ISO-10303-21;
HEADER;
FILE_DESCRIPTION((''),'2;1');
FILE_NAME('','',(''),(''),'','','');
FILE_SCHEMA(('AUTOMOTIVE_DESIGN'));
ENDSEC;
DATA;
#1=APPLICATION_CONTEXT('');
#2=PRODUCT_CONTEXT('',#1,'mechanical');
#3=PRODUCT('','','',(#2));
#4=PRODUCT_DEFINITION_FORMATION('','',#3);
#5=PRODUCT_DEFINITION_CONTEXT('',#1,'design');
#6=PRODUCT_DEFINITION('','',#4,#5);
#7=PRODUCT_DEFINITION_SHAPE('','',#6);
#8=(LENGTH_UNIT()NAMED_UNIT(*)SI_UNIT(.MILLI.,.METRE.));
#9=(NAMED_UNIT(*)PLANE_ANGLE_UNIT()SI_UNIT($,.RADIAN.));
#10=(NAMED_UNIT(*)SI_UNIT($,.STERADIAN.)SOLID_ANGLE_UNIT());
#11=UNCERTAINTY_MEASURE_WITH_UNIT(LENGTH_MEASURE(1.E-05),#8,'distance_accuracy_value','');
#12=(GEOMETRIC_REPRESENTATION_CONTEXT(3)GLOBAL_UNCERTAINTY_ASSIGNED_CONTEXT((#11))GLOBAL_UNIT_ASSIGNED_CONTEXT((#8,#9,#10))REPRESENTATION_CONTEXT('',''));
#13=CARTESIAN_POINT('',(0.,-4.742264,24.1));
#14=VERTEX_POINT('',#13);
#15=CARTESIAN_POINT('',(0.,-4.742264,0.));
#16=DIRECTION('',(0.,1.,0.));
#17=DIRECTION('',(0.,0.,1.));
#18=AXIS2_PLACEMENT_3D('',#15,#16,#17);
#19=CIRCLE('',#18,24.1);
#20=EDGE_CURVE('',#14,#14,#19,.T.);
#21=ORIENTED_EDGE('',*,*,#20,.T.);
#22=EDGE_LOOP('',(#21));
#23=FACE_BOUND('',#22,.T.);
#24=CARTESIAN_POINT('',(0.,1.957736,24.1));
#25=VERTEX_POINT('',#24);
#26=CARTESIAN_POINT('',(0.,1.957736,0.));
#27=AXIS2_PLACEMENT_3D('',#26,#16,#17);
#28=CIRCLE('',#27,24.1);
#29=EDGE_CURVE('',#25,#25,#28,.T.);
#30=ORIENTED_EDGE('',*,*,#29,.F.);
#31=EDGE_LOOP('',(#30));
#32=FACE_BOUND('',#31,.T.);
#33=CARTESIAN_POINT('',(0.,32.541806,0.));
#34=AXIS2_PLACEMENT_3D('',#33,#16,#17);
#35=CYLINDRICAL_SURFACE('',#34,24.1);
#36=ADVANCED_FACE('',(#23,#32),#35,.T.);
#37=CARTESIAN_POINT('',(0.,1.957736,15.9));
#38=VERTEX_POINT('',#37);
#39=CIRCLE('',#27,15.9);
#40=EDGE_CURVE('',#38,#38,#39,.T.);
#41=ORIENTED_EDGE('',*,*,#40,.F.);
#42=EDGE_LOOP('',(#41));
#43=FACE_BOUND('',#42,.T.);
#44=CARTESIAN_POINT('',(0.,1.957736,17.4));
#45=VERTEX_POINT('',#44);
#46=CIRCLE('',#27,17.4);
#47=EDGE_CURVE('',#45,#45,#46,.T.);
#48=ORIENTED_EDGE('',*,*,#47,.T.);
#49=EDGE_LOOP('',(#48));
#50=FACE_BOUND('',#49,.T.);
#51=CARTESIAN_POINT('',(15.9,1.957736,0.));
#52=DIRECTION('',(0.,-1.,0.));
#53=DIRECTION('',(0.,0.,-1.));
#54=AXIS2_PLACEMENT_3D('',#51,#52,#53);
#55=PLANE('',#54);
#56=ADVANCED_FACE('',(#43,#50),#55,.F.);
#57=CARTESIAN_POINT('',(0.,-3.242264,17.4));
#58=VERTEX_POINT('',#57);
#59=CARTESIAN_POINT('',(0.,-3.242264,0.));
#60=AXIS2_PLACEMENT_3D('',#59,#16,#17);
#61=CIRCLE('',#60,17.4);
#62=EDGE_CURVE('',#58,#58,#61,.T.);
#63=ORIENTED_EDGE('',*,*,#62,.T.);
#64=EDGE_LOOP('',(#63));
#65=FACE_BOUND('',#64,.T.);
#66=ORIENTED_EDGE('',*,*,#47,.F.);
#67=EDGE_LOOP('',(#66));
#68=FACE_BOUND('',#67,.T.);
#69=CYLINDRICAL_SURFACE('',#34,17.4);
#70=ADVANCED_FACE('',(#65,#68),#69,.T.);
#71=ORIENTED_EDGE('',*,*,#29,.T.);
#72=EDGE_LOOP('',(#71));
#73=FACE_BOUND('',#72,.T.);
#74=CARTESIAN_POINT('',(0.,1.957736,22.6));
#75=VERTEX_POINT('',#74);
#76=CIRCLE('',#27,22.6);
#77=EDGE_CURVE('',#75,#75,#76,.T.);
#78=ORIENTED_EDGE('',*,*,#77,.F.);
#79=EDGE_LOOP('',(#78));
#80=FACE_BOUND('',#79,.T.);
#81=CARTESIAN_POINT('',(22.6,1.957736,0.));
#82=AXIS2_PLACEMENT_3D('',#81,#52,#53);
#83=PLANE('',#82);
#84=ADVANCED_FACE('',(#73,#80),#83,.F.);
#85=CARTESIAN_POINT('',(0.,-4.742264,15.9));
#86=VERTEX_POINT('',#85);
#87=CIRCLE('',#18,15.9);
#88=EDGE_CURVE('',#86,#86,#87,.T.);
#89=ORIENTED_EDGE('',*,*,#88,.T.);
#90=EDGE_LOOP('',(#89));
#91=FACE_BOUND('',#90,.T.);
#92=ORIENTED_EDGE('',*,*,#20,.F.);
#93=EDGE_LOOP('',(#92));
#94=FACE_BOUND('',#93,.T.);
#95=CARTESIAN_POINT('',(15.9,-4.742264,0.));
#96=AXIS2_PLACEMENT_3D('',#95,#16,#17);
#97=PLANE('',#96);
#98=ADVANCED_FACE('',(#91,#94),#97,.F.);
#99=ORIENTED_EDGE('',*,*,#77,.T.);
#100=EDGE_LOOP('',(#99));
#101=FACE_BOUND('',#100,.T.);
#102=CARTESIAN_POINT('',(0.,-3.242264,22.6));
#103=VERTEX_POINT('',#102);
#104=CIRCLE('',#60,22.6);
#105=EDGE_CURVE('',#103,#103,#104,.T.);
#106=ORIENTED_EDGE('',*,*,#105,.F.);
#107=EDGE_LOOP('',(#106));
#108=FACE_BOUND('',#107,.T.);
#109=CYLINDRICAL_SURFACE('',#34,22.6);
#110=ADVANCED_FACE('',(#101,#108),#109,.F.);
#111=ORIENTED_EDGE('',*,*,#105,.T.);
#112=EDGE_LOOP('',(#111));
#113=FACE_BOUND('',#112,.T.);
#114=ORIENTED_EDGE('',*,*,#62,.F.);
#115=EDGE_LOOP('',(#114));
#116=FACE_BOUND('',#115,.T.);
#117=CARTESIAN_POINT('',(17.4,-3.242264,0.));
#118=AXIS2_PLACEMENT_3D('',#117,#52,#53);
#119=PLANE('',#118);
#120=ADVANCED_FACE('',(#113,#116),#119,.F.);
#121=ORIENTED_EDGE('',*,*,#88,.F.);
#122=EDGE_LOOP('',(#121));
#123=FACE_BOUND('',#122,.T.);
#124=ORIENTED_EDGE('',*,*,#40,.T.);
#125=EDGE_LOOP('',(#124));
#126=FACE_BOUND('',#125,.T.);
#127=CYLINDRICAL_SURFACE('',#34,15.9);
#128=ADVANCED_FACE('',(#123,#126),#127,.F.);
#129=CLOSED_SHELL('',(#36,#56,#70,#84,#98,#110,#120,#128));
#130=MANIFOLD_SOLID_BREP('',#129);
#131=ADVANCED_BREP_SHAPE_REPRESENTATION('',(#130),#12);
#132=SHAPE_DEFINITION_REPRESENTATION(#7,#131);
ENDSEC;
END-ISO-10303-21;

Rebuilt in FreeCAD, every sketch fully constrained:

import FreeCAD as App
import Part
import Sketcher

V = App.Vector


def add_polygon(sketch, points):
    """Adds a closed chain of lines whose ends are joined by coincident constraints."""
    first, n = sketch.GeometryCount, len(points)
    for a, b in zip(points, points[1:] + points[:1]):
        sketch.addGeometry(Part.LineSegment(App.Vector(*a, 0), App.Vector(*b, 0)), False)
    for i in range(n):
        sketch.addConstraint(Sketcher.Constraint("Coincident", first + i, 2, first + (i + 1) % n, 1))

doc = App.newDocument("Part")
body = doc.addObject("PartDesign::Body", "Body")

# Sketch on XY plane
sketch1 = doc.addObject("Sketcher::SketchObject", "Sketch")
body.addObject(sketch1)
sketch1.AttachmentSupport = (doc.XY_Plane, [""])
sketch1.MapMode = "FlatFace"
add_polygon(sketch1, [(17.4, -3.2), (17.4, 2), (15.9, 2), (15.9, -4.7), (24.1, -4.7), (24.1, 2), (22.6, 2), (22.6, -3.2)])  # lines 0-7
sketch1.addConstraint(Sketcher.Constraint("Vertical", 0))
sketch1.addConstraint(Sketcher.Constraint("Horizontal", 1))
sketch1.addConstraint(Sketcher.Constraint("Vertical", 2))
sketch1.addConstraint(Sketcher.Constraint("Horizontal", 3))
sketch1.addConstraint(Sketcher.Constraint("Vertical", 4))
sketch1.addConstraint(Sketcher.Constraint("Horizontal", 5))
sketch1.addConstraint(Sketcher.Constraint("Vertical", 6))
sketch1.addConstraint(Sketcher.Constraint("Horizontal", 7))
sketch1.addConstraint(Sketcher.Constraint("Horizontal", 1, 2, 4, 2))
sketch1.addConstraint(Sketcher.Constraint("Equal", 1, 5))
sketch1.addConstraint(Sketcher.Constraint("Equal", 7, 0))
sketch1.addConstraint(Sketcher.Constraint("DistanceX", 1, 2, 1, 1, 1.5))
sketch1.addConstraint(Sketcher.Constraint("DistanceX", 3, 1, 3, 2, 8.2))
sketch1.addConstraint(Sketcher.Constraint("DistanceY", 2, 2, 2, 1, 6.7))
sketch1.addConstraint(Sketcher.Constraint("DistanceX", -1, 1, 0, 2, 17.4))
sketch1.addConstraint(Sketcher.Constraint("DistanceY", -1, 1, 0, 2, 1.957736))
revolution = doc.addObject("PartDesign::Revolution", "Revolution")
body.addObject(revolution)
revolution.Profile = sketch1
revolution.ReferenceAxis = (sketch1, ["V_Axis"])
revolution.Angle = 360

doc.recompute()
